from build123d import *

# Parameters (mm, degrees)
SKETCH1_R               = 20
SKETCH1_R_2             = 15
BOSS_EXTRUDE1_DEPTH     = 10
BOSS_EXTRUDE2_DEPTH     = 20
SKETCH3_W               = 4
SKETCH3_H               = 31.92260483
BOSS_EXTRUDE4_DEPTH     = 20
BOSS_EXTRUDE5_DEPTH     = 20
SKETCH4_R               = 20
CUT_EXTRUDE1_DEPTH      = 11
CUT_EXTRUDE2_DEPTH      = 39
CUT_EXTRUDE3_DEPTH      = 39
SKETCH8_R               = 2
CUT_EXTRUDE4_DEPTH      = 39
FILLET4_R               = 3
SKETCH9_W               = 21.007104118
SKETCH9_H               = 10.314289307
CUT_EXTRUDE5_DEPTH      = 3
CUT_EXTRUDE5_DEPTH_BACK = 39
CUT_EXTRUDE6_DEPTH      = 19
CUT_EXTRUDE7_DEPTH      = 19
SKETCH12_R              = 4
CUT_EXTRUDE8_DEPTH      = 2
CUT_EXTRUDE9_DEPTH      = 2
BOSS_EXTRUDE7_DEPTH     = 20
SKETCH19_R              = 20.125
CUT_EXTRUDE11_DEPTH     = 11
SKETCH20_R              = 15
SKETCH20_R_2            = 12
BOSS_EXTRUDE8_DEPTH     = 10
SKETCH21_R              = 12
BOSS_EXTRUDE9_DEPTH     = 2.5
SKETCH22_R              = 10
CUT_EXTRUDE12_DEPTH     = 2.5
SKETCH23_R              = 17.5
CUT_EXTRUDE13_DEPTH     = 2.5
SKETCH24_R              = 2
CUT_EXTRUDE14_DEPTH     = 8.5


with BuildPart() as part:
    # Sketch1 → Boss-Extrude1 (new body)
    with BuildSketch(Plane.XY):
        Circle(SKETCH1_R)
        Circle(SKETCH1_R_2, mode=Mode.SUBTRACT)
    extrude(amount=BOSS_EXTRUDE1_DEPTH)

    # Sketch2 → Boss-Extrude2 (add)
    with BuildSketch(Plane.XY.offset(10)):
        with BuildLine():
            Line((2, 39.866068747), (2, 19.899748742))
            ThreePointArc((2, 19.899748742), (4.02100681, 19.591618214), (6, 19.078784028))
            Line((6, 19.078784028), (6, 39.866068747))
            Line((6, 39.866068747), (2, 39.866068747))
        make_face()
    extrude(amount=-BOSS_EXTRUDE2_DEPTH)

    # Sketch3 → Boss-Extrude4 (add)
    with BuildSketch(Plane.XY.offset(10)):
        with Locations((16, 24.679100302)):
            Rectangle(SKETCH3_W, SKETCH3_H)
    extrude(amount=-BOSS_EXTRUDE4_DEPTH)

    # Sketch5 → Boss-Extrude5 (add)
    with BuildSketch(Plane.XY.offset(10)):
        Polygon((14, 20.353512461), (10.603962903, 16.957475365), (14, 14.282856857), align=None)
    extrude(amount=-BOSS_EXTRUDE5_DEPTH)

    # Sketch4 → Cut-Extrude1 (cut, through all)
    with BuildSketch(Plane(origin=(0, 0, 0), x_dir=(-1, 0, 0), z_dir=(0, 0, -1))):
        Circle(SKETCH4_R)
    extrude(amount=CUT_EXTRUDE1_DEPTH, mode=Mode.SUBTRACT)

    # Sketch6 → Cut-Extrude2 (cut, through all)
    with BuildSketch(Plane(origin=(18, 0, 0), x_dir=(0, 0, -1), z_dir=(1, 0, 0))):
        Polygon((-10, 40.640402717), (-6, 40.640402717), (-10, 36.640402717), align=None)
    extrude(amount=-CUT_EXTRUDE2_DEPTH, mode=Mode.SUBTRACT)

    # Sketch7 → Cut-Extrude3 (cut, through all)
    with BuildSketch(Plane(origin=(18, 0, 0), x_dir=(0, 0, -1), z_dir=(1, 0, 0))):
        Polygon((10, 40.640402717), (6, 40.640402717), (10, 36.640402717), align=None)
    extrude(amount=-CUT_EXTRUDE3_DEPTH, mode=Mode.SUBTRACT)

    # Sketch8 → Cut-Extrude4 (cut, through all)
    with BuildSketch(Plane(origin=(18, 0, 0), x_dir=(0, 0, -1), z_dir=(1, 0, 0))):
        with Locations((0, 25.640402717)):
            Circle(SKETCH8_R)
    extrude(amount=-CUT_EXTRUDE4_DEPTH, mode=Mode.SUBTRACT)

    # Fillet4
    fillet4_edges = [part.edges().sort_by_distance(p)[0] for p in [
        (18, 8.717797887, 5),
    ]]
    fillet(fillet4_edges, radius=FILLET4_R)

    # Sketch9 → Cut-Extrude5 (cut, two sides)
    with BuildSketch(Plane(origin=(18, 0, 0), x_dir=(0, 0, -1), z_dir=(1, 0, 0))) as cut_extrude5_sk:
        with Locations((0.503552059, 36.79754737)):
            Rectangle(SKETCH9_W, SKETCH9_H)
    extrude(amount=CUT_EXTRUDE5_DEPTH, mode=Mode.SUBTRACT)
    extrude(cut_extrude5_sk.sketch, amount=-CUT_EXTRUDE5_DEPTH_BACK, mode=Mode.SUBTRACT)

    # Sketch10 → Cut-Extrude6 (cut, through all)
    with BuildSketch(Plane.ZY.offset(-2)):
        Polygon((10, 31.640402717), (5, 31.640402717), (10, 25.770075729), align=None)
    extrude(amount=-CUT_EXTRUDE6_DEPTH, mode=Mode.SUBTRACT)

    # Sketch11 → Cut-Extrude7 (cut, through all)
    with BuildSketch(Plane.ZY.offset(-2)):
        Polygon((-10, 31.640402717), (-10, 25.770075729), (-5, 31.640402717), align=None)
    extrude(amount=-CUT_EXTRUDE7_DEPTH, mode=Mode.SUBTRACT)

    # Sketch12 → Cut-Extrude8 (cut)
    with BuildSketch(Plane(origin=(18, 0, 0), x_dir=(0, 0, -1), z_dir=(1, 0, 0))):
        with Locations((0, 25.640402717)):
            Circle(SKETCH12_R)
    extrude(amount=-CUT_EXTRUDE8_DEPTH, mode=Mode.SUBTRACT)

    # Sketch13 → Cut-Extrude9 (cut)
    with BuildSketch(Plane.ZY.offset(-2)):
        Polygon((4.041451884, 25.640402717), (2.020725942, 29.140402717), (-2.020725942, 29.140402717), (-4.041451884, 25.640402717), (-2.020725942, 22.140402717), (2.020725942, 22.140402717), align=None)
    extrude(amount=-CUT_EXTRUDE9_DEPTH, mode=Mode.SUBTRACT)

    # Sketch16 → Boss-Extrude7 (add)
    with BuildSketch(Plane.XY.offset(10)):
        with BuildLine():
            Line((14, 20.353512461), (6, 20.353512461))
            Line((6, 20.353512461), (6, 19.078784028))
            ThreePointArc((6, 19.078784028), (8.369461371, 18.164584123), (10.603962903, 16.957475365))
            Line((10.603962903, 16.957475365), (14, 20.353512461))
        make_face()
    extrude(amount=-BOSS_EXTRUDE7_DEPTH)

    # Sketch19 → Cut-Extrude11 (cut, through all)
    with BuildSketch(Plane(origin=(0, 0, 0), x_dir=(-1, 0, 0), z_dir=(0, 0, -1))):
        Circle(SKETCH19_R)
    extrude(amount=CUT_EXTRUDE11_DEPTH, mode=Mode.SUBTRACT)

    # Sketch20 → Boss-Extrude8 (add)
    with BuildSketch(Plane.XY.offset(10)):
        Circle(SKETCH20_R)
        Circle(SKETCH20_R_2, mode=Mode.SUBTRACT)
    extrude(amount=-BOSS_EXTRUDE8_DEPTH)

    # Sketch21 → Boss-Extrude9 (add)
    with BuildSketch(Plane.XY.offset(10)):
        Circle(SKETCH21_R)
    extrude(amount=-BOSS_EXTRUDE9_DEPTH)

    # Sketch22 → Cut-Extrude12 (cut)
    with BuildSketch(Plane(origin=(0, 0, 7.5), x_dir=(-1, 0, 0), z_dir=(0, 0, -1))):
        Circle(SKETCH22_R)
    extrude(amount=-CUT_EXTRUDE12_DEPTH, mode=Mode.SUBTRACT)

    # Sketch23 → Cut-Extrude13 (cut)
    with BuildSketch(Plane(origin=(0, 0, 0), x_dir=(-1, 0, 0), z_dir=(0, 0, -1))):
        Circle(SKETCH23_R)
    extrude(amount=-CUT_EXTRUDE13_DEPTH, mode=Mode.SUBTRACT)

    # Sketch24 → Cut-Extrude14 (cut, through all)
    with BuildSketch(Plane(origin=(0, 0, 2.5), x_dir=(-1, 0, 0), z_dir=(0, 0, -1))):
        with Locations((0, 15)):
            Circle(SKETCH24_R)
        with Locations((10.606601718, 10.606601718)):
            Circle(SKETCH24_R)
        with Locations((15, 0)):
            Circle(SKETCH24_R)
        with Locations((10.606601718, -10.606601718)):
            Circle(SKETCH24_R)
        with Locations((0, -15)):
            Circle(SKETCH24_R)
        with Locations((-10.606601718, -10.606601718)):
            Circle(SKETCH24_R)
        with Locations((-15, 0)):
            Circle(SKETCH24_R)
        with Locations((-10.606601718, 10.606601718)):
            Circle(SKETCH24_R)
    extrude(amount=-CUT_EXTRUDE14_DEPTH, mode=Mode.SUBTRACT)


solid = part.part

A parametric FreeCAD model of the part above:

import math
import FreeCAD as App
import Part
import Sketcher
Q = App.Units.Quantity


def edges_at(feature, points):
    """Names of the edges that pass closest to the given points."""
    edges = feature.Shape.Edges
    near = lambda p: min(range(len(edges)), key=lambda i: edges[i].distToShape(Part.Vertex(*p))[0])
    return sorted({f"Edge{near(p) + 1}" for p in points})


def add_polygon(sketch, points):
    """Adds a closed chain of lines whose ends are joined by coincident constraints."""
    first, n = sketch.GeometryCount, len(points)
    for a, b in zip(points, points[1:] + points[:1]):
        sketch.addGeometry(Part.LineSegment(App.Vector(*a, 0), App.Vector(*b, 0)), False)
    for i in range(n):
        sketch.addConstraint(Sketcher.Constraint("Coincident", first + i, 2, first + (i + 1) % n, 1))

doc = App.newDocument("Part")
body = doc.addObject("PartDesign::Body", "Body")

sketch1 = body.newObject("Sketcher::SketchObject", "Sketch")
sketch1.AttachmentSupport = (doc.getObject("XY_Plane"), [""])
sketch1.MapMode = "FlatFace"
sketch1.addGeometry([
    Part.Circle(App.Vector(0, 0, 0), App.Vector(0, 0, 1), 20),
    Part.Circle(App.Vector(0, 0, 0), App.Vector(0, 0, 1), 15),
], False)
sketch1.addConstraint([
    Sketcher.Constraint("Coincident", 0, 3, -1, 1),
    Sketcher.Constraint("Coincident", 1, 3, -1, 1),
    Sketcher.Constraint("Diameter", 0, Q("40 mm")),
    Sketcher.Constraint("Diameter", 1, Q("30 mm")),
])
pad1 = body.newObject("PartDesign::Pad", "Pad")
pad1.Profile = sketch1
pad1.Length = 10

sketch2 = body.newObject("Sketcher::SketchObject", "Sketch001")
sketch2.AttachmentSupport = (doc.getObject("XY_Plane"), [""])
sketch2.MapMode = "FlatFace"
sketch2.AttachmentOffset = App.Placement(App.Vector(0, 0, 10), App.Rotation())
sketch2.addGeometry([
    Part.LineSegment(App.Vector(2, 39.9, 0), App.Vector(2, 19.9, 0)),
    Part.ArcOfCircle(Part.Circle(App.Vector(0, 0, 0), App.Vector(0, 0, 1), 20), math.radians(72.54), math.radians(84.26)),
    Part.LineSegment(App.Vector(6, 19.1, 0), App.Vector(6, 39.9, 0)),
    Part.LineSegment(App.Vector(6, 39.9, 0), App.Vector(2, 39.9, 0)),
], False)
sketch2.addConstraint([
    Sketcher.Constraint("Coincident", 0, 2, 1, 2),
    Sketcher.Constraint("Coincident", 1, 1, 2, 1),
    Sketcher.Constraint("Coincident", 2, 2, 3, 1),
    Sketcher.Constraint("Coincident", 3, 2, 0, 1),
    Sketcher.Constraint("Vertical", 0),
    Sketcher.Constraint("Vertical", 2),
    Sketcher.Constraint("Horizontal", 3),
    Sketcher.Constraint("Coincident", 1, 3, -1, 1),
    Sketcher.Constraint("Radius", 1, Q("20 mm")),
    Sketcher.Constraint("DistanceX", 3, 2, 3, 1, Q("4 mm")),
    Sketcher.Constraint("DistanceX", -1, 1, 0, 2, Q("2 mm")),
    Sketcher.Constraint("DistanceY", 0, 2, 0, 1, Q("19.96632 mm")),
])
pad2 = body.newObject("PartDesign::Pad", "Pad001")
pad2.Profile = sketch2
pad2.Length = 20
pad2.Reversed = True

sketch3 = body.newObject("Sketcher::SketchObject", "Sketch002")
sketch3.AttachmentSupport = (doc.getObject("XY_Plane"), [""])
sketch3.MapMode = "FlatFace"
sketch3.AttachmentOffset = App.Placement(App.Vector(0, 0, 10), App.Rotation())
add_polygon(sketch3, [(14, 40.6), (14, 8.7), (18, 8.7), (18, 40.6)])
sketch3.addConstraint([
    Sketcher.Constraint("Vertical", 0),
    Sketcher.Constraint("Horizontal", 1),
    Sketcher.Constraint("Vertical", 2),
    Sketcher.Constraint("Horizontal", 3),
    Sketcher.Constraint("DistanceX", 1, 1, 1, 2, Q("4 mm")),
    Sketcher.Constraint("DistanceX", -1, 1, 0, 2, Q("14 mm")),
    Sketcher.Constraint("DistanceY", 0, 2, 0, 1, Q("31.922605 mm")),
    Sketcher.Constraint("DistanceY", -1, 1, 0, 2, Q("8.717798 mm")),
])
pad3 = body.newObject("PartDesign::Pad", "Pad002")
pad3.Profile = sketch3
pad3.Length = 20
pad3.Reversed = True

sketch4 = body.newObject("Sketcher::SketchObject", "Sketch003")
sketch4.AttachmentSupport = (doc.getObject("XY_Plane"), [""])
sketch4.MapMode = "FlatFace"
sketch4.AttachmentOffset = App.Placement(App.Vector(0, 0, 10), App.Rotation())
add_polygon(sketch4, [(14, 20.4), (10.6, 17), (14, 14.3)])
sketch4.addConstraint([
    Sketcher.Constraint("Vertical", 2),
    Sketcher.Constraint("Angle", 0, Q("-135 deg")),
    Sketcher.Constraint("DistanceX", -1, 1, 1, 2, Q("14 mm")),
    Sketcher.Constraint("Distance", 0, Q("4.802722 mm")),
    Sketcher.Constraint("DistanceY", 2, 1, 2, 2, Q("6.070656 mm")),
    Sketcher.Constraint("DistanceY", -1, 1, 0, 2, Q("16.957475 mm")),
])
pad4 = body.newObject("PartDesign::Pad", "Pad003")
pad4.Profile = sketch4
pad4.Length = 20
pad4.Reversed = True

sketch5 = body.newObject("Sketcher::SketchObject", "Sketch004")
sketch5.AttachmentSupport = (doc.getObject("XY_Plane"), [""])
sketch5.MapMode = "FlatFace"
sketch5.addGeometry(Part.Circle(App.Vector(0, 0, 0), App.Vector(0, 0, 1), 20), False)
sketch5.addConstraint([
    Sketcher.Constraint("Coincident", 0, 3, -1, 1),
    Sketcher.Constraint("Diameter", 0, Q("40 mm")),
])
pocket1 = body.newObject("PartDesign::Pocket", "Pocket")
pocket1.Profile = sketch5
pocket1.Type = "ThroughAll"

sketch6 = body.newObject("Sketcher::SketchObject", "Sketch005")
sketch6.AttachmentSupport = (doc.getObject("YZ_Plane"), [""])
sketch6.MapMode = "FlatFace"
sketch6.AttachmentOffset = App.Placement(App.Vector(0, 0, 18), App.Rotation())
add_polygon(sketch6, [(40.6, 6), (40.6, 10), (36.6, 10)])
sketch6.addConstraint([
    Sketcher.Constraint("Vertical", 0),
    Sketcher.Constraint("Horizontal", 1),
    Sketcher.Constraint("Equal", 1, 0),
    Sketcher.Constraint("DistanceX", 1, 2, 1, 1, Q("4 mm")),
    Sketcher.Constraint("DistanceY", -1, 1, 0, 2, Q("10 mm")),
    Sketcher.Constraint("DistanceX", -1, 1, 0, 2, Q("40.640403 mm")),
])
pocket2 = body.newObject("PartDesign::Pocket", "Pocket001")
pocket2.Profile = sketch6
pocket2.Type = "ThroughAll"

sketch7 = body.newObject("Sketcher::SketchObject", "Sketch006")
sketch7.AttachmentSupport = (doc.getObject("YZ_Plane"), [""])
sketch7.MapMode = "FlatFace"
sketch7.AttachmentOffset = App.Placement(App.Vector(0, 0, 18), App.Rotation())
add_polygon(sketch7, [(40.6, -10), (40.6, -6), (36.6, -10)])
sketch7.addConstraint([
    Sketcher.Constraint("Vertical", 0),
    Sketcher.Constraint("Horizontal", 2),
    Sketcher.Constraint("Equal", 2, 0),
    Sketcher.Constraint("DistanceX", 2, 1, 2, 2, Q("4 mm")),
    Sketcher.Constraint("DistanceY", 0, 2, -1, 1, Q("6 mm")),
    Sketcher.Constraint("DistanceX", -1, 1, 0, 2, Q("40.640403 mm")),
])
pocket3 = body.newObject("PartDesign::Pocket", "Pocket002")
pocket3.Profile = sketch7
pocket3.Type = "ThroughAll"

sketch8 = body.newObject("Sketcher::SketchObject", "Sketch007")
sketch8.AttachmentSupport = (doc.getObject("YZ_Plane"), [""])
sketch8.MapMode = "FlatFace"
sketch8.AttachmentOffset = App.Placement(App.Vector(0, 0, 18), App.Rotation())
sketch8.addGeometry(Part.Circle(App.Vector(25.6, 0, 0), App.Vector(0, 0, 1), 2), False)
sketch8.addConstraint([
    Sketcher.Constraint("PointOnObject", 0, 3, -1),
    Sketcher.Constraint("Diameter", 0, Q("4 mm")),
    Sketcher.Constraint("DistanceX", -1, 1, 0, 3, Q("25.640403 mm")),
])
pocket4 = body.newObject("PartDesign::Pocket", "Pocket003")
pocket4.Profile = sketch8
pocket4.Type = "ThroughAll"
doc.recompute()

fillet = body.newObject("PartDesign::Fillet", "Fillet")
fillet.Base = (pocket4, edges_at(pocket4, [(18, 8.718, 5)]))
fillet.Radius = 3

sketch9 = body.newObject("Sketcher::SketchObject", "Sketch008")
sketch9.AttachmentSupport = (doc.getObject("YZ_Plane"), [""])
sketch9.MapMode = "FlatFace"
sketch9.AttachmentOffset = App.Placement(App.Vector(0, 0, 18), App.Rotation())
add_polygon(sketch9, [(42, 10), (32, 10), (32, -11), (42, -11)])
sketch9.addConstraint([
    Sketcher.Constraint("Horizontal", 0),
    Sketcher.Constraint("Vertical", 1),
    Sketcher.Constraint("Horizontal", 2),
    Sketcher.Constraint("Vertical", 3),
    Sketcher.Constraint("DistanceY", -1, 1, 0, 2, Q("10 mm")),
    Sketcher.Constraint("DistanceX", 0, 2, 0, 1, Q("10.314289 mm")),
    Sketcher.Constraint("DistanceY", 1, 2, 1, 1, Q("21.007104 mm")),
    Sketcher.Constraint("DistanceX", -1, 1, 0, 2, Q("31.640403 mm")),
])
pocket5 = body.newObject("PartDesign::Pocket", "Pocket004")
pocket5.Profile = sketch9
pocket5.Type = "ThroughAll"
pocket5.Midplane = True

sketch10 = body.newObject("Sketcher::SketchObject", "Sketch009")
sketch10.AttachmentSupport = (doc.getObject("YZ_Plane"), [""])
sketch10.MapMode = "FlatFace"
sketch10.AttachmentOffset = App.Placement(App.Vector(0, 0, 2), App.Rotation())
add_polygon(sketch10, [(32, 10), (32, 5), (26, 10)])
sketch10.addConstraint([
    Sketcher.Constraint("Vertical", 0),
    Sketcher.Constraint("Horizontal", 2),
    Sketcher.Constraint("DistanceY", 0, 2, 0, 1, Q("5 mm")),
    Sketcher.Constraint("DistanceY", -1, 1, 0, 2, Q("5 mm")),
    Sketcher.Constraint("Distance", 1, Q("7.711079 mm")),
    Sketcher.Constraint("DistanceX", -1, 1, 0, 2, Q("31.640403 mm")),
])
pocket6 = body.newObject("PartDesign::Pocket", "Pocket005")
pocket6.Profile = sketch10
pocket6.Type = "ThroughAll"
pocket6.Reversed = True

sketch11 = body.newObject("Sketcher::SketchObject", "Sketch010")
sketch11.AttachmentSupport = (doc.getObject("YZ_Plane"), [""])
sketch11.MapMode = "FlatFace"
sketch11.AttachmentOffset = App.Placement(App.Vector(0, 0, 2), App.Rotation())
add_polygon(sketch11, [(32, -10), (26, -10), (32, -5)])
sketch11.addConstraint([
    Sketcher.Constraint("Horizontal", 0),
    Sketcher.Constraint("Vertical", 2),
    Sketcher.Constraint("DistanceY", 2, 2, 2, 1, Q("5 mm")),
    Sketcher.Constraint("DistanceY", 0, 2, -1, 1, Q("10 mm")),
    Sketcher.Constraint("Distance", 1, Q("7.711079 mm")),
    Sketcher.Constraint("DistanceX", -1, 1, 0, 2, Q("25.770076 mm")),
])
pocket7 = body.newObject("PartDesign::Pocket", "Pocket006")
pocket7.Profile = sketch11
pocket7.Type = "ThroughAll"
pocket7.Reversed = True

sketch12 = body.newObject("Sketcher::SketchObject", "Sketch011")
sketch12.AttachmentSupport = (doc.getObject("YZ_Plane"), [""])
sketch12.MapMode = "FlatFace"
sketch12.AttachmentOffset = App.Placement(App.Vector(0, 0, 18), App.Rotation())
sketch12.addGeometry(Part.Circle(App.Vector(25.6, 0, 0), App.Vector(0, 0, 1), 4), False)
sketch12.addConstraint([
    Sketcher.Constraint("PointOnObject", 0, 3, -1),
    Sketcher.Constraint("Diameter", 0, Q("8 mm")),
    Sketcher.Constraint("DistanceX", -1, 1, 0, 3, Q("25.640403 mm")),
])
pocket8 = body.newObject("PartDesign::Pocket", "Pocket007")
pocket8.Profile = sketch12
pocket8.Length = 2

sketch13 = body.newObject("Sketcher::SketchObject", "Sketch012")
sketch13.AttachmentSupport = (doc.getObject("YZ_Plane"), [""])
sketch13.MapMode = "FlatFace"
sketch13.AttachmentOffset = App.Placement(App.Vector(0, 0, 2), App.Rotation())
add_polygon(sketch13, [(25.6, 4), (29.1, 2), (29.1, -2), (25.6, -4), (22.1, -2), (22.1, 2)])
sketch13.addConstraint([
    Sketcher.Constraint("Vertical", 1),
    Sketcher.Constraint("Vertical", 4),
    Sketcher.Constraint("Symmetric", 2, 2, 5, 2, -1),
    Sketcher.Constraint("Parallel", 0, 3),
    Sketcher.Constraint("Parallel", 2, 5),
    Sketcher.Constraint("Horizontal", 1, 2, 3, 2),
    Sketcher.Constraint("Horizontal", 0, 2, 4, 2),
    Sketcher.Constraint("Angle", 0, Q("-30 deg")),
    Sketcher.Constraint("DistanceX", 3, 2, 1, 2, Q("7 mm")),
    Sketcher.Constraint("DistanceY", 1, 2, 1, 1, Q("4.041452 mm")),
    Sketcher.Constraint("DistanceX", -1, 1, 0, 2, Q("29.140403 mm")),
])
pocket9 = body.newObject("PartDesign::Pocket", "Pocket008")
pocket9.Profile = sketch13
pocket9.Length = 2
pocket9.Reversed = True

sketch14 = body.newObject("Sketcher::SketchObject", "Sketch013")
sketch14.AttachmentSupport = (doc.getObject("XY_Plane"), [""])
sketch14.MapMode = "FlatFace"
sketch14.AttachmentOffset = App.Placement(App.Vector(0, 0, 10), App.Rotation())
sketch14.addGeometry([
    Part.LineSegment(App.Vector(14, 20.4, 0), App.Vector(6, 20.4, 0)),
    Part.LineSegment(App.Vector(6, 20.4, 0), App.Vector(6, 19.1, 0)),
    Part.ArcOfCircle(Part.Circle(App.Vector(0, 0, 0), App.Vector(0, 0, 1), 20), math.radians(57.98), math.radians(72.54)),
    Part.LineSegment(App.Vector(10.6, 17, 0), App.Vector(14, 20.4, 0)),
], False)
sketch14.addConstraint([
    Sketcher.Constraint("Coincident", 0, 2, 1, 1),
    Sketcher.Constraint("Coincident", 1, 2, 2, 2),
    Sketcher.Constraint("Coincident", 2, 1, 3, 1),
    Sketcher.Constraint("Coincident", 3, 2, 0, 1),
    Sketcher.Constraint("Horizontal", 0),
    Sketcher.Constraint("Vertical", 1),
    Sketcher.Constraint("Coincident", 2, 3, -1, 1),
    Sketcher.Constraint("Radius", 2, Q("20 mm")),
    Sketcher.Constraint("DistanceX", 0, 2, 0, 1, Q("8 mm")),
    Sketcher.Constraint("Angle", 3, Q("45 deg")),
    Sketcher.Constraint("DistanceX", -1, 1, 0, 2, Q("6 mm")),
    Sketcher.Constraint("DistanceY", 1, 2, 1, 1, Q("1.274728 mm")),
])
pad5 = body.newObject("PartDesign::Pad", "Pad004")
pad5.Profile = sketch14
pad5.Length = 20
pad5.Reversed = True

sketch15 = body.newObject("Sketcher::SketchObject", "Sketch014")
sketch15.AttachmentSupport = (doc.getObject("XY_Plane"), [""])
sketch15.MapMode = "FlatFace"
sketch15.addGeometry(Part.Circle(App.Vector(0, 0, 0), App.Vector(0, 0, 1), 20), False)
sketch15.addConstraint([
    Sketcher.Constraint("Coincident", 0, 3, -1, 1),
    Sketcher.Constraint("Diameter", 0, Q("40.25 mm")),
])
pocket10 = body.newObject("PartDesign::Pocket", "Pocket009")
pocket10.Profile = sketch15
pocket10.Type = "ThroughAll"

sketch16 = body.newObject("Sketcher::SketchObject", "Sketch015")
sketch16.AttachmentSupport = (doc.getObject("XY_Plane"), [""])
sketch16.MapMode = "FlatFace"
sketch16.AttachmentOffset = App.Placement(App.Vector(0, 0, 10), App.Rotation())
sketch16.addGeometry([
    Part.Circle(App.Vector(0, 0, 0), App.Vector(0, 0, 1), 15),
    Part.Circle(App.Vector(0, 0, 0), App.Vector(0, 0, 1), 12),
], False)
sketch16.addConstraint([
    Sketcher.Constraint("Coincident", 0, 3, -1, 1),
    Sketcher.Constraint("Coincident", 1, 3, -1, 1),
    Sketcher.Constraint("Diameter", 0, Q("30 mm")),
    Sketcher.Constraint("Diameter", 1, Q("24 mm")),
])
pad6 = body.newObject("PartDesign::Pad", "Pad005")
pad6.Profile = sketch16
pad6.Length = 10
pad6.Reversed = True

sketch17 = body.newObject("Sketcher::SketchObject", "Sketch016")
sketch17.AttachmentSupport = (doc.getObject("XY_Plane"), [""])
sketch17.MapMode = "FlatFace"
sketch17.AttachmentOffset = App.Placement(App.Vector(0, 0, 10), App.Rotation())
sketch17.addGeometry(Part.Circle(App.Vector(0, 0, 0), App.Vector(0, 0, 1), 12), False)
sketch17.addConstraint([
    Sketcher.Constraint("Coincident", 0, 3, -1, 1),
    Sketcher.Constraint("Diameter", 0, Q("24 mm")),
])
pad7 = body.newObject("PartDesign::Pad", "Pad006")
pad7.Profile = sketch17
pad7.Length = 2.5
pad7.Reversed = True

sketch18 = body.newObject("Sketcher::SketchObject", "Sketch017")
sketch18.AttachmentSupport = (doc.getObject("XY_Plane"), [""])
sketch18.MapMode = "FlatFace"
sketch18.AttachmentOffset = App.Placement(App.Vector(0, 0, 7.5), App.Rotation())
sketch18.addGeometry(Part.Circle(App.Vector(0, 0, 0), App.Vector(0, 0, 1), 10), False)
sketch18.addConstraint([
    Sketcher.Constraint("Coincident", 0, 3, -1, 1),
    Sketcher.Constraint("Diameter", 0, Q("20 mm")),
])
pocket11 = body.newObject("PartDesign::Pocket", "Pocket010")
pocket11.Profile = sketch18
pocket11.Length = 2.5
pocket11.Reversed = True

sketch19 = body.newObject("Sketcher::SketchObject", "Sketch018")
sketch19.AttachmentSupport = (doc.getObject("XY_Plane"), [""])
sketch19.MapMode = "FlatFace"
sketch19.addGeometry(Part.Circle(App.Vector(0, 0, 0), App.Vector(0, 0, 1), 18), False)
sketch19.addConstraint([
    Sketcher.Constraint("Coincident", 0, 3, -1, 1),
    Sketcher.Constraint("Diameter", 0, Q("35 mm")),
])
pocket12 = body.newObject("PartDesign::Pocket", "Pocket011")
pocket12.Profile = sketch19
pocket12.Length = 2.5
pocket12.Reversed = True

sketch20 = body.newObject("Sketcher::SketchObject", "Sketch019")
sketch20.AttachmentSupport = (doc.getObject("XY_Plane"), [""])
sketch20.MapMode = "FlatFace"
sketch20.AttachmentOffset = App.Placement(App.Vector(0, 0, 2.5), App.Rotation())
sketch20.addGeometry([
    Part.Circle(App.Vector(0, 15, 0), App.Vector(0, 0, 1), 2),
    Part.Circle(App.Vector(-10.6, 10.6, 0), App.Vector(0, 0, 1), 2),
    Part.Circle(App.Vector(-15, 0, 0), App.Vector(0, 0, 1), 2),
    Part.Circle(App.Vector(-10.6, -10.6, 0), App.Vector(0, 0, 1), 2),
    Part.Circle(App.Vector(0, -15, 0), App.Vector(0, 0, 1), 2),
    Part.Circle(App.Vector(10.6, -10.6, 0), App.Vector(0, 0, 1), 2),
    Part.Circle(App.Vector(15, 0, 0), App.Vector(0, 0, 1), 2),
    Part.Circle(App.Vector(10.6, 10.6, 0), App.Vector(0, 0, 1), 2),
], False)
sketch20.addConstraint([
    Sketcher.Constraint("Equal", 0, 1),
    Sketcher.Constraint("Equal", 1, 2),
    Sketcher.Constraint("Equal", 2, 3),
    Sketcher.Constraint("Equal", 3, 4),
    Sketcher.Constraint("Equal", 4, 5),
    Sketcher.Constraint("Equal", 5, 6),
    Sketcher.Constraint("Equal", 6, 7),
    Sketcher.Constraint("Symmetric", 0, 3, 4, 3, -1, 1),
    Sketcher.Constraint("Symmetric", 1, 3, 5, 3, -1, 1),
    Sketcher.Constraint("Symmetric", 2, 3, 6, 3, -1, 1),
    Sketcher.Constraint("Symmetric", 3, 3, 7, 3, -1, 1),
    Sketcher.Constraint("Symmetric", 3, 3, 5, 3, -2),
    Sketcher.Constraint("PointOnObject", 0, 3, -2),
    Sketcher.Constraint("PointOnObject", 2, 3, -1),
    Sketcher.Constraint("Diameter", 0, Q("4 mm")),
    Sketcher.Constraint("DistanceY", -1, 1, 0, 3, Q("15 mm")),
    Sketcher.Constraint("DistanceX", 2, 3, -1, 1, Q("15 mm")),
    Sketcher.Constraint("DistanceX", 1, 3, -1, 1, Q("10.606602 mm")),
    Sketcher.Constraint("DistanceY", -1, 1, 1, 3, Q("10.606602 mm")),
])
pocket13 = body.newObject("PartDesign::Pocket", "Pocket012")
pocket13.Profile = sketch20
pocket13.Type = "ThroughAll"
pocket13.Reversed = True

doc.recompute()
